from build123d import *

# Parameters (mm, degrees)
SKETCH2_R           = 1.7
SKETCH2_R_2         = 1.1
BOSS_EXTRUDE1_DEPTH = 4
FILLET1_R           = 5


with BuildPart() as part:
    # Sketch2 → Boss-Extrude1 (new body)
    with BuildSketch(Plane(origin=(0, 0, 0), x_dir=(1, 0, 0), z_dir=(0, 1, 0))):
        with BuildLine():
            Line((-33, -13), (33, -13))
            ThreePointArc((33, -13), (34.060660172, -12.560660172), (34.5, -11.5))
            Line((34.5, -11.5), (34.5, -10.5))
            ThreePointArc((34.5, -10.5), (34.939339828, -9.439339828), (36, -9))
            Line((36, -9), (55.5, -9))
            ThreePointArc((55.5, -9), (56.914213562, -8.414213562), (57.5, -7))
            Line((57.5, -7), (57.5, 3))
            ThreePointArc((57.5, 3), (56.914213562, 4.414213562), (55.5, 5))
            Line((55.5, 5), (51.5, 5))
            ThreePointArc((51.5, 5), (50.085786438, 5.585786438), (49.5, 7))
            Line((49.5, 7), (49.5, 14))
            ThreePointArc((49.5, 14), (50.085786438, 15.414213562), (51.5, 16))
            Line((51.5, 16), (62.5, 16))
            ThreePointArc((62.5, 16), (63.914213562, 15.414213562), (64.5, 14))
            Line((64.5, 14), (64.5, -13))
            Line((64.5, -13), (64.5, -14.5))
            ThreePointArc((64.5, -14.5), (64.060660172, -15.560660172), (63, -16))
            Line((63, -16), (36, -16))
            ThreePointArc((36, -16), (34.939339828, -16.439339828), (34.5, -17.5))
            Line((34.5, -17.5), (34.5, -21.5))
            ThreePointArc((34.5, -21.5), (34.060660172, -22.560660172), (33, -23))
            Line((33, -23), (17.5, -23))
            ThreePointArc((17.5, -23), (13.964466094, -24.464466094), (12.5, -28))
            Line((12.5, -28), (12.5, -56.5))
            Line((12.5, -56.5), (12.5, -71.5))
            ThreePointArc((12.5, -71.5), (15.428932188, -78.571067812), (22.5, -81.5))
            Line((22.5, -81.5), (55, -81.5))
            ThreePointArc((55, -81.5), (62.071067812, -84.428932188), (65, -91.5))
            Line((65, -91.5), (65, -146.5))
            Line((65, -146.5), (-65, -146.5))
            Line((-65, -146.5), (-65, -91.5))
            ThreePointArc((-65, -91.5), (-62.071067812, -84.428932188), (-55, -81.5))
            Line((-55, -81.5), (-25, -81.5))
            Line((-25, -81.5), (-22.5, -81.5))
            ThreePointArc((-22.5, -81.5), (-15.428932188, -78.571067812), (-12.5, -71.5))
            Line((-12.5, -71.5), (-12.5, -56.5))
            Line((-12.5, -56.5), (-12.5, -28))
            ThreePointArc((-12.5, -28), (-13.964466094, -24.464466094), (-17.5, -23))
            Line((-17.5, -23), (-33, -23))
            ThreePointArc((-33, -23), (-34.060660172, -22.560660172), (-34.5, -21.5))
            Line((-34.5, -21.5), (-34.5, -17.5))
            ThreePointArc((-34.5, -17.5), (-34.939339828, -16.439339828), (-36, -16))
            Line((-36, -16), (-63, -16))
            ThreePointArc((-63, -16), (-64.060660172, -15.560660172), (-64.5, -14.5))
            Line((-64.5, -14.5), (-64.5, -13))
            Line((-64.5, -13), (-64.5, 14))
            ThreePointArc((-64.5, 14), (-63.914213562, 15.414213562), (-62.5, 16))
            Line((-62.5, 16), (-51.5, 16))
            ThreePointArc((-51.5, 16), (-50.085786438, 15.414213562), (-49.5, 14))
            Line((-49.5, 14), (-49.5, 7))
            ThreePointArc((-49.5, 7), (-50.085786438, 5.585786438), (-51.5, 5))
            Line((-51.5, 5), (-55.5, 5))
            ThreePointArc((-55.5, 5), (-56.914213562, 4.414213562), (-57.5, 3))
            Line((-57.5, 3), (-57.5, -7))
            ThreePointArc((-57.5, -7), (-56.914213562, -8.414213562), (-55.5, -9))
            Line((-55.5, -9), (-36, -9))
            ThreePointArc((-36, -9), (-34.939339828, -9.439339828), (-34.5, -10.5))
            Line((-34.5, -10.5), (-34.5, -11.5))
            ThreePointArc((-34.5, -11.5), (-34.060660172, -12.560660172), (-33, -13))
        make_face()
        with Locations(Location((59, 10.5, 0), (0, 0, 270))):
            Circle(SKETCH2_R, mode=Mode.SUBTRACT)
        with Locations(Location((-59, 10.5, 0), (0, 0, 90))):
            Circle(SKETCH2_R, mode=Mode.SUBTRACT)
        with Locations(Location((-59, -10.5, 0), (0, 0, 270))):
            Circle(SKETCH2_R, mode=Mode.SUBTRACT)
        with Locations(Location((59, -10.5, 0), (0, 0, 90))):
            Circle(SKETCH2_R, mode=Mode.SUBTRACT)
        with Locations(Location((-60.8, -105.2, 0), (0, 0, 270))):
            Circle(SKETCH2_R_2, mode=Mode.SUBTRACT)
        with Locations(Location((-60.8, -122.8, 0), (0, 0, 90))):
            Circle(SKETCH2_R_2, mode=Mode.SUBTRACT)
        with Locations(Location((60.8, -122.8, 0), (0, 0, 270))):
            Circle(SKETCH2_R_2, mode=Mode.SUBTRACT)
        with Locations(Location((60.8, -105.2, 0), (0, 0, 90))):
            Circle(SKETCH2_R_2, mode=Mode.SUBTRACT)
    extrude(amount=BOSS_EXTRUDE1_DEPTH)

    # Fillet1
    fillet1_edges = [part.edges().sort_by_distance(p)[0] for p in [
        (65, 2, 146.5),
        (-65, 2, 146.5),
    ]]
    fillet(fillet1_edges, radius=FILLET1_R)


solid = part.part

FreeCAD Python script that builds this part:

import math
import FreeCAD as App
import Part
import Sketcher
from FreeCAD import Vector
Q = App.Units.Quantity


def edges_at(feature, points):
    """Names of the edges that pass closest to the given points."""
    edges = feature.Shape.Edges
    near = lambda p: min(range(len(edges)), key=lambda i: edges[i].distToShape(Part.Vertex(*p))[0])
    return sorted({f"Edge{near(p) + 1}" for p in points})

doc = App.newDocument("Part")
params = doc.addObject("Spreadsheet::Sheet", "Params")
for row, (alias, value) in enumerate([
    ("sketch1_radius", "2 mm"),
    ("sketch1_radius2", "5 mm"),
    ("sketch1_radius3", "10 mm"),
    ("sketch1_diameter", "2.2 mm"),
    ("sketch1_diameter2", "3.4 mm"),
    ("pad1_length", "4 mm"),
    ("fillet_radius", "5 mm"),
], start=1):
    params.set(f"A{row}", alias)
    params.set(f"B{row}", "=" + value)
    params.setAlias(f"B{row}", alias)

body = doc.addObject("PartDesign::Body", "Body")

# Sketch on XZ plane
sketch1 = body.newObject("Sketcher::SketchObject", "Sketch")
sketch1.AttachmentSupport = (doc.getObject("XZ_Plane"), [""])
sketch1.MapMode = "FlatFace"
sketch1.addGeometry(Part.LineSegment(Vector(33, 13, 0), Vector(-33, 13, 0)), False)
sketch1.addGeometry(Part.ArcOfCircle(Part.Circle(Vector(-33, 11.5, 0), Vector(0, 0, 1), 1.5), math.radians(90), math.radians(180)), False)
sketch1.addGeometry(Part.LineSegment(Vector(-34.5, 11.5, 0), Vector(-34.5, 10.5, 0)), False)
sketch1.addGeometry(Part.ArcOfCircle(Part.Circle(Vector(-36, 10.5, 0), Vector(0, 0, 1), 1.5), math.radians(-90), math.radians(0)), False)
sketch1.addGeometry(Part.LineSegment(Vector(-36, 9, 0), Vector(-55.5, 9, 0)), False)
sketch1.addGeometry(Part.ArcOfCircle(Part.Circle(Vector(-55.5, 7, 0), Vector(0, 0, 1), 2), math.radians(90), math.radians(180)), False)
sketch1.addGeometry(Part.LineSegment(Vector(-57.5, 7, 0), Vector(-57.5, -3, 0)), False)
sketch1.addGeometry(Part.ArcOfCircle(Part.Circle(Vector(-55.5, -3, 0), Vector(0, 0, 1), 2), math.radians(-180), math.radians(-90)), False)
sketch1.addGeometry(Part.LineSegment(Vector(-55.5, -5, 0), Vector(-51.5, -5, 0)), False)
sketch1.addGeometry(Part.ArcOfCircle(Part.Circle(Vector(-51.5, -7, 0), Vector(0, 0, 1), 2), math.radians(0), math.radians(90)), False)
sketch1.addGeometry(Part.LineSegment(Vector(-49.5, -7, 0), Vector(-49.5, -14, 0)), False)
sketch1.addGeometry(Part.ArcOfCircle(Part.Circle(Vector(-51.5, -14, 0), Vector(0, 0, 1), 2), math.radians(-90), math.radians(0)), False)
sketch1.addGeometry(Part.LineSegment(Vector(-51.5, -16, 0), Vector(-62.5, -16, 0)), False)
sketch1.addGeometry(Part.ArcOfCircle(Part.Circle(Vector(-62.5, -14, 0), Vector(0, 0, 1), 2), math.radians(-180), math.radians(-90)), False)
sketch1.addGeometry(Part.LineSegment(Vector(-64.5, -14, 0), Vector(-64.5, 14.5, 0)), False)
sketch1.addGeometry(Part.ArcOfCircle(Part.Circle(Vector(-63, 14.5, 0), Vector(0, 0, 1), 1.5), math.radians(90), math.radians(180)), False)
sketch1.addGeometry(Part.LineSegment(Vector(-63, 16, 0), Vector(-36, 16, 0)), False)
sketch1.addGeometry(Part.ArcOfCircle(Part.Circle(Vector(-36, 17.5, 0), Vector(0, 0, 1), 1.5), math.radians(-90), math.radians(0)), False)
sketch1.addGeometry(Part.LineSegment(Vector(-34.5, 17.5, 0), Vector(-34.5, 21.5, 0)), False)
sketch1.addGeometry(Part.ArcOfCircle(Part.Circle(Vector(-33, 21.5, 0), Vector(0, 0, 1), 1.5), math.radians(90), math.radians(180)), False)
sketch1.addGeometry(Part.LineSegment(Vector(-33, 23, 0), Vector(-17.5, 23, 0)), False)
sketch1.addGeometry(Part.ArcOfCircle(Part.Circle(Vector(-17.5, 28, 0), Vector(0, 0, 1), 5), math.radians(-90), math.radians(0)), False)
sketch1.addGeometry(Part.LineSegment(Vector(-12.5, 28, 0), Vector(-12.5, 71.5, 0)), False)
sketch1.addGeometry(Part.ArcOfCircle(Part.Circle(Vector(-22.5, 71.5, 0), Vector(0, 0, 1), 10), math.radians(0), math.radians(90)), False)
sketch1.addGeometry(Part.LineSegment(Vector(-22.5, 81.5, 0), Vector(-55, 81.5, 0)), False)
sketch1.addGeometry(Part.ArcOfCircle(Part.Circle(Vector(-55, 91.5, 0), Vector(0, 0, 1), 10), math.radians(180), math.radians(270)), False)
sketch1.addGeometry(Part.LineSegment(Vector(-65, 91.5, 0), Vector(-65, 146.5, 0)), False)
sketch1.addGeometry(Part.LineSegment(Vector(-65, 146.5, 0), Vector(65, 146.5, 0)), False)
sketch1.addGeometry(Part.LineSegment(Vector(65, 146.5, 0), Vector(65, 91.5, 0)), False)
sketch1.addGeometry(Part.ArcOfCircle(Part.Circle(Vector(55, 91.5, 0), Vector(0, 0, 1), 10), math.radians(-90), math.radians(0)), False)
sketch1.addGeometry(Part.LineSegment(Vector(55, 81.5, 0), Vector(22.5, 81.5, 0)), False)
sketch1.addGeometry(Part.ArcOfCircle(Part.Circle(Vector(22.5, 71.5, 0), Vector(0, 0, 1), 10), math.radians(90), math.radians(180)), False)
sketch1.addGeometry(Part.LineSegment(Vector(12.5, 71.5, 0), Vector(12.5, 28, 0)), False)
sketch1.addGeometry(Part.ArcOfCircle(Part.Circle(Vector(17.5, 28, 0), Vector(0, 0, 1), 5), math.radians(180), math.radians(270)), False)
sketch1.addGeometry(Part.LineSegment(Vector(17.5, 23, 0), Vector(33, 23, 0)), False)
sketch1.addGeometry(Part.ArcOfCircle(Part.Circle(Vector(33, 21.5, 0), Vector(0, 0, 1), 1.5), math.radians(0), math.radians(90)), False)
sketch1.addGeometry(Part.LineSegment(Vector(34.5, 21.5, 0), Vector(34.5, 17.5, 0)), False)
sketch1.addGeometry(Part.ArcOfCircle(Part.Circle(Vector(36, 17.5, 0), Vector(0, 0, 1), 1.5), math.radians(180), math.radians(270)), False)
sketch1.addGeometry(Part.LineSegment(Vector(36, 16, 0), Vector(63, 16, 0)), False)
sketch1.addGeometry(Part.ArcOfCircle(Part.Circle(Vector(63, 14.5, 0), Vector(0, 0, 1), 1.5), math.radians(0), math.radians(90)), False)
sketch1.addGeometry(Part.LineSegment(Vector(64.5, 14.5, 0), Vector(64.5, -14, 0)), False)
sketch1.addGeometry(Part.ArcOfCircle(Part.Circle(Vector(62.5, -14, 0), Vector(0, 0, 1), 2), math.radians(-90), math.radians(0)), False)
sketch1.addGeometry(Part.LineSegment(Vector(62.5, -16, 0), Vector(51.5, -16, 0)), False)
sketch1.addGeometry(Part.ArcOfCircle(Part.Circle(Vector(51.5, -14, 0), Vector(0, 0, 1), 2), math.radians(-180), math.radians(-90)), False)
sketch1.addGeometry(Part.LineSegment(Vector(49.5, -14, 0), Vector(49.5, -7, 0)), False)
sketch1.addGeometry(Part.ArcOfCircle(Part.Circle(Vector(51.5, -7, 0), Vector(0, 0, 1), 2), math.radians(90), math.radians(180)), False)
sketch1.addGeometry(Part.LineSegment(Vector(51.5, -5, 0), Vector(55.5, -5, 0)), False)
sketch1.addGeometry(Part.ArcOfCircle(Part.Circle(Vector(55.5, -3, 0), Vector(0, 0, 1), 2), math.radians(-90), math.radians(0)), False)
sketch1.addGeometry(Part.LineSegment(Vector(57.5, -3, 0), Vector(57.5, 7, 0)), False)
sketch1.addGeometry(Part.ArcOfCircle(Part.Circle(Vector(55.5, 7, 0), Vector(0, 0, 1), 2), math.radians(0), math.radians(90)), False)
sketch1.addGeometry(Part.LineSegment(Vector(55.5, 9, 0), Vector(36, 9, 0)), False)
sketch1.addGeometry(Part.ArcOfCircle(Part.Circle(Vector(36, 10.5, 0), Vector(0, 0, 1), 1.5), math.radians(180), math.radians(270)), False)
sketch1.addGeometry(Part.LineSegment(Vector(34.5, 10.5, 0), Vector(34.5, 11.5, 0)), False)
sketch1.addGeometry(Part.ArcOfCircle(Part.Circle(Vector(33, 11.5, 0), Vector(0, 0, 1), 1.5), math.radians(0), math.radians(90)), False)
sketch1.addGeometry(Part.Circle(Vector(60.8, 122.8, 0), Vector(0, 0, 1), 1.1), False)
sketch1.addGeometry(Part.Circle(Vector(60.8, 105.2, 0), Vector(0, 0, 1), 1.1), False)
sketch1.addGeometry(Part.Circle(Vector(-60.8, 122.8, 0), Vector(0, 0, 1), 1.1), False)
sketch1.addGeometry(Part.Circle(Vector(-60.8, 105.2, 0), Vector(0, 0, 1), 1.1), False)
sketch1.addGeometry(Part.Circle(Vector(59, 10.5, 0), Vector(0, 0, 1), 1.7), False)
sketch1.addGeometry(Part.Circle(Vector(59, -10.5, 0), Vector(0, 0, 1), 1.7), False)
sketch1.addGeometry(Part.Circle(Vector(-59, 10.5, 0), Vector(0, 0, 1), 1.7), False)
sketch1.addGeometry(Part.Circle(Vector(-59, -10.5, 0), Vector(0, 0, 1), 1.7), False)
sketch1.addConstraint(Sketcher.Constraint("Tangent", 0, 2, 1, 1))
sketch1.addConstraint(Sketcher.Constraint("Tangent", 1, 2, 2, 1))
sketch1.addConstraint(Sketcher.Constraint("Tangent", 2, 2, 3, 2))
sketch1.addConstraint(Sketcher.Constraint("Tangent", 3, 1, 4, 1))
sketch1.addConstraint(Sketcher.Constraint("Tangent", 4, 2, 5, 1))
sketch1.addConstraint(Sketcher.Constraint("Tangent", 5, 2, 6, 1))
sketch1.addConstraint(Sketcher.Constraint("Tangent", 6, 2, 7, 1))
sketch1.addConstraint(Sketcher.Constraint("Tangent", 7, 2, 8, 1))
sketch1.addConstraint(Sketcher.Constraint("Tangent", 8, 2, 9, 2))
sketch1.addConstraint(Sketcher.Constraint("Tangent", 9, 1, 10, 1))
sketch1.addConstraint(Sketcher.Constraint("Tangent", 10, 2, 11, 2))
sketch1.addConstraint(Sketcher.Constraint("Tangent", 11, 1, 12, 1))
sketch1.addConstraint(Sketcher.Constraint("Tangent", 12, 2, 13, 2))
sketch1.addConstraint(Sketcher.Constraint("Tangent", 13, 1, 14, 1))
sketch1.addConstraint(Sketcher.Constraint("Tangent", 14, 2, 15, 2))
sketch1.addConstraint(Sketcher.Constraint("Tangent", 15, 1, 16, 1))
sketch1.addConstraint(Sketcher.Constraint("Tangent", 16, 2, 17, 1))
sketch1.addConstraint(Sketcher.Constraint("Tangent", 17, 2, 18, 1))
sketch1.addConstraint(Sketcher.Constraint("Tangent", 18, 2, 19, 2))
sketch1.addConstraint(Sketcher.Constraint("Tangent", 19, 1, 20, 1))
sketch1.addConstraint(Sketcher.Constraint("Tangent", 20, 2, 21, 1))
sketch1.addConstraint(Sketcher.Constraint("Tangent", 21, 2, 22, 1))
sketch1.addConstraint(Sketcher.Constraint("Tangent", 22, 2, 23, 1))
sketch1.addConstraint(Sketcher.Constraint("Tangent", 23, 2, 24, 1))
sketch1.addConstraint(Sketcher.Constraint("Tangent", 24, 2, 25, 2))
sketch1.addConstraint(Sketcher.Constraint("Tangent", 25, 1, 26, 1))
sketch1.addConstraint(Sketcher.Constraint("Coincident", 26, 2, 27, 1))
sketch1.addConstraint(Sketcher.Constraint("Coincident", 27, 2, 28, 1))
sketch1.addConstraint(Sketcher.Constraint("Tangent", 28, 2, 29, 2))
sketch1.addConstraint(Sketcher.Constraint("Tangent", 29, 1, 30, 1))
sketch1.addConstraint(Sketcher.Constraint("Tangent", 30, 2, 31, 1))
sketch1.addConstraint(Sketcher.Constraint("Tangent", 31, 2, 32, 1))
sketch1.addConstraint(Sketcher.Constraint("Tangent", 32, 2, 33, 1))
sketch1.addConstraint(Sketcher.Constraint("Tangent", 33, 2, 34, 1))
sketch1.addConstraint(Sketcher.Constraint("Tangent", 34, 2, 35, 2))
sketch1.addConstraint(Sketcher.Constraint("Tangent", 35, 1, 36, 1))
sketch1.addConstraint(Sketcher.Constraint("Tangent", 36, 2, 37, 1))
sketch1.addConstraint(Sketcher.Constraint("Tangent", 37, 2, 38, 1))
sketch1.addConstraint(Sketcher.Constraint("Tangent", 38, 2, 39, 2))
sketch1.addConstraint(Sketcher.Constraint("Tangent", 39, 1, 40, 1))
sketch1.addConstraint(Sketcher.Constraint("Tangent", 40, 2, 41, 2))
sketch1.addConstraint(Sketcher.Constraint("Tangent", 41, 1, 42, 1))
sketch1.addConstraint(Sketcher.Constraint("Tangent", 42, 2, 43, 2))
sketch1.addConstraint(Sketcher.Constraint("Tangent", 43, 1, 44, 1))
sketch1.addConstraint(Sketcher.Constraint("Tangent", 44, 2, 45, 2))
sketch1.addConstraint(Sketcher.Constraint("Tangent", 45, 1, 46, 1))
sketch1.addConstraint(Sketcher.Constraint("Tangent", 46, 2, 47, 1))
sketch1.addConstraint(Sketcher.Constraint("Tangent", 47, 2, 48, 1))
sketch1.addConstraint(Sketcher.Constraint("Tangent", 48, 2, 49, 1))
sketch1.addConstraint(Sketcher.Constraint("Tangent", 49, 2, 50, 1))
sketch1.addConstraint(Sketcher.Constraint("Tangent", 50, 2, 51, 2))
sketch1.addConstraint(Sketcher.Constraint("Tangent", 51, 1, 52, 1))
sketch1.addConstraint(Sketcher.Constraint("Tangent", 52, 2, 53, 1))
sketch1.addConstraint(Sketcher.Constraint("Tangent", 53, 2, 0, 1))
sketch1.addConstraint(Sketcher.Constraint("Horizontal", 0))
sketch1.addConstraint(Sketcher.Constraint("Vertical", 2))
sketch1.addConstraint(Sketcher.Constraint("Horizontal", 4))
sketch1.addConstraint(Sketcher.Constraint("Vertical", 6))
sketch1.addConstraint(Sketcher.Constraint("Horizontal", 8))
sketch1.addConstraint(Sketcher.Constraint("Vertical", 10))
sketch1.addConstraint(Sketcher.Constraint("Horizontal", 12))
sketch1.addConstraint(Sketcher.Constraint("Vertical", 14))
sketch1.addConstraint(Sketcher.Constraint("Horizontal", 16))
sketch1.addConstraint(Sketcher.Constraint("Vertical", 18))
sketch1.addConstraint(Sketcher.Constraint("Horizontal", 20))
sketch1.addConstraint(Sketcher.Constraint("Vertical", 22))
sketch1.addConstraint(Sketcher.Constraint("Horizontal", 24))
sketch1.addConstraint(Sketcher.Constraint("Vertical", 26))
sketch1.addConstraint(Sketcher.Constraint("Horizontal", 27))
sketch1.addConstraint(Sketcher.Constraint("Vertical", 28))
sketch1.addConstraint(Sketcher.Constraint("Horizontal", 30))
sketch1.addConstraint(Sketcher.Constraint("Vertical", 32))
sketch1.addConstraint(Sketcher.Constraint("Horizontal", 34))
sketch1.addConstraint(Sketcher.Constraint("Vertical", 36))
sketch1.addConstraint(Sketcher.Constraint("Horizontal", 38))
sketch1.addConstraint(Sketcher.Constraint("Vertical", 40))
sketch1.addConstraint(Sketcher.Constraint("Horizontal", 42))
sketch1.addConstraint(Sketcher.Constraint("Vertical", 44))
sketch1.addConstraint(Sketcher.Constraint("Horizontal", 46))
sketch1.addConstraint(Sketcher.Constraint("Vertical", 48))
sketch1.addConstraint(Sketcher.Constraint("Horizontal", 50))
sketch1.addConstraint(Sketcher.Constraint("Vertical", 52))
sketch1.addConstraint(Sketcher.Constraint("Equal", 1, 3))
sketch1.addConstraint(Sketcher.Constraint("Equal", 5, 7))
sketch1.addConstraint(Sketcher.Constraint("Equal", 7, 9))
sketch1.addConstraint(Sketcher.Constraint("Equal", 9, 11))
sketch1.addConstraint(Sketcher.Constraint("Equal", 11, 13))
sketch1.addConstraint(Sketcher.Constraint("Equal", 3, 15))
sketch1.addConstraint(Sketcher.Constraint("Equal", 15, 17))
sketch1.addConstraint(Sketcher.Constraint("Equal", 17, 19))
sketch1.addConstraint(Sketcher.Constraint("Equal", 23, 25))
sketch1.addConstraint(Sketcher.Constraint("Equal", 25, 29))
sketch1.addConstraint(Sketcher.Constraint("Equal", 29, 31))
sketch1.addConstraint(Sketcher.Constraint("Equal", 21, 33))
sketch1.addConstraint(Sketcher.Constraint("Equal", 19, 35))
sketch1.addConstraint(Sketcher.Constraint("Equal", 35, 37))
sketch1.addConstraint(Sketcher.Constraint("Equal", 37, 39))
sketch1.addConstraint(Sketcher.Constraint("Equal", 13, 41))
sketch1.addConstraint(Sketcher.Constraint("Equal", 41, 43))
sketch1.addConstraint(Sketcher.Constraint("Equal", 43, 45))
sketch1.addConstraint(Sketcher.Constraint("Equal", 45, 47))
sketch1.addConstraint(Sketcher.Constraint("Equal", 47, 49))
sketch1.addConstraint(Sketcher.Constraint("Equal", 39, 51))
sketch1.addConstraint(Sketcher.Constraint("Equal", 51, 53))
sketch1.addConstraint(Sketcher.Constraint("Equal", 54, 55))
sketch1.addConstraint(Sketcher.Constraint("Equal", 55, 56))
sketch1.addConstraint(Sketcher.Constraint("Equal", 56, 57))
sketch1.addConstraint(Sketcher.Constraint("Equal", 58, 59))
sketch1.addConstraint(Sketcher.Constraint("Equal", 59, 60))
sketch1.addConstraint(Sketcher.Constraint("Equal", 60, 61))
sketch1.addConstraint(Sketcher.Constraint("Symmetric", 59, 3, 60, 3, -1, 1))
sketch1.addConstraint(Sketcher.Constraint("Symmetric", 58, 3, 61, 3, -1, 1))
sketch1.addConstraint(Sketcher.Constraint("Symmetric", 25, 3, 29, 3, -2))
sketch1.addConstraint(Sketcher.Constraint("Symmetric", 21, 3, 33, 3, -2))
sketch1.addConstraint(Sketcher.Constraint("Symmetric", 17, 3, 37, 3, -2))
sketch1.addConstraint(Sketcher.Constraint("Symmetric", 13, 3, 41, 3, -2))
sketch1.addConstraint(Sketcher.Constraint("Symmetric", 9, 3, 45, 3, -2))
sketch1.addConstraint(Sketcher.Constraint("Symmetric", 5, 3, 49, 3, -2))
sketch1.addConstraint(Sketcher.Constraint("Symmetric", 54, 3, 56, 3, -2))
sketch1.addConstraint(Sketcher.Constraint("Symmetric", 55, 3, 57, 3, -2))
sketch1.addConstraint(Sketcher.Constraint("Symmetric", 58, 3, 60, 3, -2))
sketch1.addConstraint(Sketcher.Constraint("Horizontal", 51, 3, 58, 3))
sketch1.addConstraint(Sketcher.Constraint("Vertical", 3, 3, 17, 3))
sketch1.addConstraint(Sketcher.Constraint("Vertical", 37, 3, 51, 3))
sketch1.addConstraint(Sketcher.Constraint("Vertical", 54, 3, 55, 3))
sketch1.addConstraint(Sketcher.Constraint("Equal", 46, 18))
sketch1.addConstraint(Sketcher.Constraint("Radius", 5, Q("2 mm")))
sketch1.addConstraint(Sketcher.Constraint("Radius", 21, Q("5 mm")))
sketch1.addConstraint(Sketcher.Constraint("Radius", 23, Q("10 mm")))
sketch1.addConstraint(Sketcher.Constraint("Diameter", 54, Q("2.2 mm")))
sketch1.addConstraint(Sketcher.Constraint("Diameter", 58, Q("3.4 mm")))
sketch1.addConstraint(Sketcher.Constraint("Radius", 1, Q("1.5 mm")))
sketch1.addConstraint(Sketcher.Constraint("DistanceX", 0, 2, 0, 1, Q("66 mm")))
sketch1.addConstraint(Sketcher.Constraint("DistanceX", 8, 1, 8, 2, Q("4 mm")))
sketch1.addConstraint(Sketcher.Constraint("DistanceX", 12, 2, 12, 1, Q("11 mm")))
sketch1.addConstraint(Sketcher.Constraint("DistanceX", 16, 1, 16, 2, Q("27 mm")))
sketch1.addConstraint(Sketcher.Constraint("DistanceX", 27, 1, 27, 2, Q("130 mm")))
sketch1.addConstraint(Sketcher.Constraint("DistanceY", 2, 2, 2, 1, Q("1 mm")))
sketch1.addConstraint(Sketcher.Constraint("DistanceY", 6, 2, 6, 1, Q("10 mm")))
sketch1.addConstraint(Sketcher.Constraint("DistanceY", 10, 2, 10, 1, Q("7 mm")))
sketch1.addConstraint(Sketcher.Constraint("DistanceY", 26, 1, 26, 2, Q("55 mm")))
sketch1.addConstraint(Sketcher.Constraint("DistanceX", 20, 1, 20, 2, Q("15.5 mm")))
sketch1.addConstraint(Sketcher.Constraint("DistanceY", 14, 1, 14, 2, Q("28.5 mm")))
sketch1.addConstraint(Sketcher.Constraint("DistanceY", 22, 1, 22, 2, Q("43.5 mm")))
sketch1.addConstraint(Sketcher.Constraint("DistanceY", -1, 1, 5, 3, Q("7 mm")))
sketch1.addConstraint(Sketcher.Constraint("DistanceX", -1, 1, 58, 3, Q("59 mm")))
sketch1.addConstraint(Sketcher.Constraint("DistanceX", -1, 1, 54, 3, Q("60.8 mm")))
sketch1.addConstraint(Sketcher.Constraint("DistanceY", -1, 1, 54, 3, Q("122.8 mm")))
sketch1.addConstraint(Sketcher.Constraint("DistanceY", -1, 1, 55, 3, Q("105.2 mm")))
sketch1.setExpression("Constraints[126]", "Params.sketch1_radius")
sketch1.setExpression("Constraints[127]", "Params.sketch1_radius2")
sketch1.setExpression("Constraints[128]", "Params.sketch1_radius3")
sketch1.setExpression("Constraints[129]", "Params.sketch1_diameter")
sketch1.setExpression("Constraints[130]", "Params.sketch1_diameter2")
pad1 = body.newObject("PartDesign::Pad", "Pad")
pad1.Profile = sketch1
pad1.setExpression("Length", "Params.pad1_length")
pad1.Reversed = True
doc.recompute()

fillet = body.newObject("PartDesign::Fillet", "Fillet")
fillet.Base = (pad1, edges_at(pad1, [(65, 2, 146.5), (-65, 2, 146.5)]))
fillet.setExpression("Radius", "Params.fillet_radius")

doc.recompute()
